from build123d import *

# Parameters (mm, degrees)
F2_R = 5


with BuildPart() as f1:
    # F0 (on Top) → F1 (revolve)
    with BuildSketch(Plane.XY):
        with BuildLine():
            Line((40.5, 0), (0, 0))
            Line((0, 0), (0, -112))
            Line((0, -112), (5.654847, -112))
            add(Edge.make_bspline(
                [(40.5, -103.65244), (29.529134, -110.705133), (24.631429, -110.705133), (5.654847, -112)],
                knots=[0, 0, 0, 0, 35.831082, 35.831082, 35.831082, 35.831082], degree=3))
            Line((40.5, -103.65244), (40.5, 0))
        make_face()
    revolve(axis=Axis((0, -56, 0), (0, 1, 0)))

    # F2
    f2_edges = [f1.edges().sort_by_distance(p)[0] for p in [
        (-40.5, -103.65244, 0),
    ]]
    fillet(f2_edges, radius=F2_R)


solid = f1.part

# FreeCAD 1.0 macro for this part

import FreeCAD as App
import Part
import Sketcher
from FreeCAD import Vector


def edges_at(feature, points):
    """Names of the edges that pass closest to the given points."""
    edges = feature.Shape.Edges
    near = lambda p: min(range(len(edges)), key=lambda i: edges[i].distToShape(Part.Vertex(*p))[0])
    return sorted({f"Edge{near(p) + 1}" for p in points})

doc = App.newDocument("Part")
body = doc.addObject("PartDesign::Body", "Body")

# Sketch on XY plane
sketch1 = body.newObject("Sketcher::SketchObject", "Sketch")
sketch1.AttachmentSupport = (doc.getObject("XY_Plane"), [""])
sketch1.MapMode = "FlatFace"
sketch1.addGeometry(Part.LineSegment(Vector(40.5, 0, 0), Vector(0, 0, 0)), False)
sketch1.addGeometry(Part.LineSegment(Vector(0, 0, 0), Vector(0, -112, 0)), False)
sketch1.addGeometry(Part.LineSegment(Vector(0, -112, 0), Vector(5.654847, -112, 0)), False)
sketch1.addGeometry(Part.BSplineCurve([Vector(40.5, -103.65244, 0), Vector(29.529134, -110.705133, 0), Vector(24.631429, -110.705133, 0), Vector(5.654847, -112, 0)], [4, 4], [0, 35.831082], False, 3, [1, 1, 1, 1], False), False)
sketch1.addGeometry(Part.LineSegment(Vector(40.5, -103.65244, 0), Vector(40.5, 0, 0)), False)
sketch1.addConstraint(Sketcher.Constraint("Block", 3))
sketch1.addConstraint(Sketcher.Constraint("Coincident", 0, 2, 1, 1))
sketch1.addConstraint(Sketcher.Constraint("Coincident", 1, 2, 2, 1))
sketch1.addConstraint(Sketcher.Constraint("Coincident", 2, 2, 3, 2))
sketch1.addConstraint(Sketcher.Constraint("Coincident", 3, 1, 4, 1))
sketch1.addConstraint(Sketcher.Constraint("Coincident", 4, 2, 0, 1))
sketch1.addConstraint(Sketcher.Constraint("Horizontal", 0))
sketch1.addConstraint(Sketcher.Constraint("Vertical", 1))
sketch1.addConstraint(Sketcher.Constraint("Horizontal", 2))
sketch1.addConstraint(Sketcher.Constraint("Vertical", 4))
sketch1.addConstraint(Sketcher.Constraint("Coincident", 0, 2, -1, 1))
revolution = body.newObject("PartDesign::Revolution", "Revolution")
revolution.Profile = sketch1
revolution.ReferenceAxis = (sketch1, ["V_Axis"])
revolution.Angle = 360
doc.recompute()

fillet = body.newObject("PartDesign::Fillet", "Fillet")
fillet.Base = (revolution, edges_at(revolution, [(-40.5, -103.652, 0)]))
fillet.Radius = 5

doc.recompute()
